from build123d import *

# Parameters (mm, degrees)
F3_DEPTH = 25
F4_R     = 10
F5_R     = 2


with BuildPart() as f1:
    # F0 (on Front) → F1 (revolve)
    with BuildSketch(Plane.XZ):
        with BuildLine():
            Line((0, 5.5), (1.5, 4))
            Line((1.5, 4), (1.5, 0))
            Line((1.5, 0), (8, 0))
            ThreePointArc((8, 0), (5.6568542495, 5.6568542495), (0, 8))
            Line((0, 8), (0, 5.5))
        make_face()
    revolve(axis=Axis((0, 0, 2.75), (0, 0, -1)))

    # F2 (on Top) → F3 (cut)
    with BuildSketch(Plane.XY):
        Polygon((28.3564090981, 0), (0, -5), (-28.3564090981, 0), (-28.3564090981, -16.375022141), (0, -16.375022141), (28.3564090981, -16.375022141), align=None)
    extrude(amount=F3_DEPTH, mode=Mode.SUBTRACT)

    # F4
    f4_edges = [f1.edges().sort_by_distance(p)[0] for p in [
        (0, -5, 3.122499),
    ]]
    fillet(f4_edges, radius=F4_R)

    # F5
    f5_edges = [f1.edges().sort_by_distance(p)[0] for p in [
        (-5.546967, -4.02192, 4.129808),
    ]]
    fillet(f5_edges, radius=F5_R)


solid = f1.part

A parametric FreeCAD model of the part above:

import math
import FreeCAD as App
import Part
import Sketcher

V = App.Vector
Q = App.Units.Quantity


def edges_at(feature, points):
    """Names of the edges that pass closest to the given points."""
    edges = feature.Shape.Edges
    near = lambda p: min(range(len(edges)), key=lambda i: edges[i].distToShape(Part.Vertex(*p))[0])
    return sorted({f"Edge{near(p) + 1}" for p in points})

doc = App.newDocument("Part")
body = doc.addObject("PartDesign::Body", "Body")

# Sketch on XZ plane
sketch1 = body.newObject("Sketcher::SketchObject", "Sketch")
sketch1.AttachmentSupport = (doc.getObject("XZ_Plane"), [""])
sketch1.MapMode = "FlatFace"
sketch1.addGeometry([
    Part.LineSegment(V(0, 5.5, 0), V(1.5, 4, 0)),  # 0
    Part.LineSegment(V(1.5, 4, 0), V(1.5, 0, 0)),  # 1
    Part.LineSegment(V(1.5, 0, 0), V(8, 0, 0)),  # 2
    Part.ArcOfCircle(Part.Circle(V(0, 0, 0), V(0, 0, 1), 8), math.radians(0), math.radians(90)),  # 3
    Part.LineSegment(V(0, 8, 0), V(0, 5.5, 0)),  # 4
], False)
sketch1.addConstraint([
    Sketcher.Constraint("Coincident", 0, 2, 1, 1),
    Sketcher.Constraint("Coincident", 1, 2, 2, 1),
    Sketcher.Constraint("Coincident", 2, 2, 3, 1),
    Sketcher.Constraint("Coincident", 3, 2, 4, 1),
    Sketcher.Constraint("Coincident", 4, 2, 0, 1),
    Sketcher.Constraint("Vertical", 1),
    Sketcher.Constraint("Horizontal", 2),
    Sketcher.Constraint("Vertical", 4),
    Sketcher.Constraint("Coincident", 3, 3, -1, 1),
    Sketcher.Constraint("PointOnObject", 1, 2, -1),
    Sketcher.Constraint("PointOnObject", 3, 2, -2),
    Sketcher.Constraint("Radius", 3, 8.0),
    Sketcher.Constraint("DistanceY", 1, 2, 1, 1, 4.0),
    Sketcher.Constraint("Angle", 0, Q("-45 deg")),
    Sketcher.Constraint("DistanceX", 2, 1, 2, 2, 6.5),
])
revolution = body.newObject("PartDesign::Revolution", "Revolution")
revolution.Profile = sketch1
revolution.ReferenceAxis = (sketch1, ["V_Axis"])
revolution.Angle = 360

# Sketch on XY plane
sketch2 = body.newObject("Sketcher::SketchObject", "Sketch001")
sketch2.AttachmentSupport = (doc.getObject("XY_Plane"), [""])
sketch2.MapMode = "FlatFace"
sketch2.addGeometry([
    Part.LineSegment(V(28, 0, 0), V(0, -5, 0)),  # 0
    Part.LineSegment(V(0, -5, 0), V(-28, 0, 0)),  # 1
    Part.LineSegment(V(-28, 0, 0), V(-28, -16, 0)),  # 2
    Part.LineSegment(V(-28, -16, 0), V(28, -16, 0)),  # 3
    Part.LineSegment(V(28, -16, 0), V(28, 0, 0)),  # 4
], False)
sketch2.addConstraint([
    Sketcher.Constraint("Coincident", 0, 2, 1, 1),
    Sketcher.Constraint("Coincident", 1, 2, 2, 1),
    Sketcher.Constraint("Coincident", 2, 2, 3, 1),
    Sketcher.Constraint("Coincident", 3, 2, 4, 1),
    Sketcher.Constraint("Coincident", 4, 2, 0, 1),
    Sketcher.Constraint("Vertical", 2),
    Sketcher.Constraint("Horizontal", 3),
    Sketcher.Constraint("Vertical", 4),
    Sketcher.Constraint("Symmetric", 1, 2, 4, 2, -1, 1),
    Sketcher.Constraint("PointOnObject", 0, 2, -2),
    Sketcher.Constraint("PointOnObject", 1, 2, -1),
    Sketcher.Constraint("Angle", 0, Q("-170 deg")),
    Sketcher.Constraint("DistanceY", 0, 2, -1, 1, 5.0),
    Sketcher.Constraint("DistanceY", 2, 2, 2, 1, 16.375022),
])
pocket1 = body.newObject("PartDesign::Pocket", "Pocket")
pocket1.Profile = sketch2
pocket1.Length = 25
pocket1.Reversed = True
doc.recompute()

fillet = body.newObject("PartDesign::Fillet", "Fillet")
fillet.Base = (pocket1, edges_at(pocket1, [(0, -5, 3.122)]))
fillet.Radius = 10
doc.recompute()

fillet2 = body.newObject("PartDesign::Fillet", "Fillet001")
fillet2.Base = (fillet, edges_at(fillet, [(-5.547, -4.022, 4.13)]))
fillet2.Radius = 2

doc.recompute()
